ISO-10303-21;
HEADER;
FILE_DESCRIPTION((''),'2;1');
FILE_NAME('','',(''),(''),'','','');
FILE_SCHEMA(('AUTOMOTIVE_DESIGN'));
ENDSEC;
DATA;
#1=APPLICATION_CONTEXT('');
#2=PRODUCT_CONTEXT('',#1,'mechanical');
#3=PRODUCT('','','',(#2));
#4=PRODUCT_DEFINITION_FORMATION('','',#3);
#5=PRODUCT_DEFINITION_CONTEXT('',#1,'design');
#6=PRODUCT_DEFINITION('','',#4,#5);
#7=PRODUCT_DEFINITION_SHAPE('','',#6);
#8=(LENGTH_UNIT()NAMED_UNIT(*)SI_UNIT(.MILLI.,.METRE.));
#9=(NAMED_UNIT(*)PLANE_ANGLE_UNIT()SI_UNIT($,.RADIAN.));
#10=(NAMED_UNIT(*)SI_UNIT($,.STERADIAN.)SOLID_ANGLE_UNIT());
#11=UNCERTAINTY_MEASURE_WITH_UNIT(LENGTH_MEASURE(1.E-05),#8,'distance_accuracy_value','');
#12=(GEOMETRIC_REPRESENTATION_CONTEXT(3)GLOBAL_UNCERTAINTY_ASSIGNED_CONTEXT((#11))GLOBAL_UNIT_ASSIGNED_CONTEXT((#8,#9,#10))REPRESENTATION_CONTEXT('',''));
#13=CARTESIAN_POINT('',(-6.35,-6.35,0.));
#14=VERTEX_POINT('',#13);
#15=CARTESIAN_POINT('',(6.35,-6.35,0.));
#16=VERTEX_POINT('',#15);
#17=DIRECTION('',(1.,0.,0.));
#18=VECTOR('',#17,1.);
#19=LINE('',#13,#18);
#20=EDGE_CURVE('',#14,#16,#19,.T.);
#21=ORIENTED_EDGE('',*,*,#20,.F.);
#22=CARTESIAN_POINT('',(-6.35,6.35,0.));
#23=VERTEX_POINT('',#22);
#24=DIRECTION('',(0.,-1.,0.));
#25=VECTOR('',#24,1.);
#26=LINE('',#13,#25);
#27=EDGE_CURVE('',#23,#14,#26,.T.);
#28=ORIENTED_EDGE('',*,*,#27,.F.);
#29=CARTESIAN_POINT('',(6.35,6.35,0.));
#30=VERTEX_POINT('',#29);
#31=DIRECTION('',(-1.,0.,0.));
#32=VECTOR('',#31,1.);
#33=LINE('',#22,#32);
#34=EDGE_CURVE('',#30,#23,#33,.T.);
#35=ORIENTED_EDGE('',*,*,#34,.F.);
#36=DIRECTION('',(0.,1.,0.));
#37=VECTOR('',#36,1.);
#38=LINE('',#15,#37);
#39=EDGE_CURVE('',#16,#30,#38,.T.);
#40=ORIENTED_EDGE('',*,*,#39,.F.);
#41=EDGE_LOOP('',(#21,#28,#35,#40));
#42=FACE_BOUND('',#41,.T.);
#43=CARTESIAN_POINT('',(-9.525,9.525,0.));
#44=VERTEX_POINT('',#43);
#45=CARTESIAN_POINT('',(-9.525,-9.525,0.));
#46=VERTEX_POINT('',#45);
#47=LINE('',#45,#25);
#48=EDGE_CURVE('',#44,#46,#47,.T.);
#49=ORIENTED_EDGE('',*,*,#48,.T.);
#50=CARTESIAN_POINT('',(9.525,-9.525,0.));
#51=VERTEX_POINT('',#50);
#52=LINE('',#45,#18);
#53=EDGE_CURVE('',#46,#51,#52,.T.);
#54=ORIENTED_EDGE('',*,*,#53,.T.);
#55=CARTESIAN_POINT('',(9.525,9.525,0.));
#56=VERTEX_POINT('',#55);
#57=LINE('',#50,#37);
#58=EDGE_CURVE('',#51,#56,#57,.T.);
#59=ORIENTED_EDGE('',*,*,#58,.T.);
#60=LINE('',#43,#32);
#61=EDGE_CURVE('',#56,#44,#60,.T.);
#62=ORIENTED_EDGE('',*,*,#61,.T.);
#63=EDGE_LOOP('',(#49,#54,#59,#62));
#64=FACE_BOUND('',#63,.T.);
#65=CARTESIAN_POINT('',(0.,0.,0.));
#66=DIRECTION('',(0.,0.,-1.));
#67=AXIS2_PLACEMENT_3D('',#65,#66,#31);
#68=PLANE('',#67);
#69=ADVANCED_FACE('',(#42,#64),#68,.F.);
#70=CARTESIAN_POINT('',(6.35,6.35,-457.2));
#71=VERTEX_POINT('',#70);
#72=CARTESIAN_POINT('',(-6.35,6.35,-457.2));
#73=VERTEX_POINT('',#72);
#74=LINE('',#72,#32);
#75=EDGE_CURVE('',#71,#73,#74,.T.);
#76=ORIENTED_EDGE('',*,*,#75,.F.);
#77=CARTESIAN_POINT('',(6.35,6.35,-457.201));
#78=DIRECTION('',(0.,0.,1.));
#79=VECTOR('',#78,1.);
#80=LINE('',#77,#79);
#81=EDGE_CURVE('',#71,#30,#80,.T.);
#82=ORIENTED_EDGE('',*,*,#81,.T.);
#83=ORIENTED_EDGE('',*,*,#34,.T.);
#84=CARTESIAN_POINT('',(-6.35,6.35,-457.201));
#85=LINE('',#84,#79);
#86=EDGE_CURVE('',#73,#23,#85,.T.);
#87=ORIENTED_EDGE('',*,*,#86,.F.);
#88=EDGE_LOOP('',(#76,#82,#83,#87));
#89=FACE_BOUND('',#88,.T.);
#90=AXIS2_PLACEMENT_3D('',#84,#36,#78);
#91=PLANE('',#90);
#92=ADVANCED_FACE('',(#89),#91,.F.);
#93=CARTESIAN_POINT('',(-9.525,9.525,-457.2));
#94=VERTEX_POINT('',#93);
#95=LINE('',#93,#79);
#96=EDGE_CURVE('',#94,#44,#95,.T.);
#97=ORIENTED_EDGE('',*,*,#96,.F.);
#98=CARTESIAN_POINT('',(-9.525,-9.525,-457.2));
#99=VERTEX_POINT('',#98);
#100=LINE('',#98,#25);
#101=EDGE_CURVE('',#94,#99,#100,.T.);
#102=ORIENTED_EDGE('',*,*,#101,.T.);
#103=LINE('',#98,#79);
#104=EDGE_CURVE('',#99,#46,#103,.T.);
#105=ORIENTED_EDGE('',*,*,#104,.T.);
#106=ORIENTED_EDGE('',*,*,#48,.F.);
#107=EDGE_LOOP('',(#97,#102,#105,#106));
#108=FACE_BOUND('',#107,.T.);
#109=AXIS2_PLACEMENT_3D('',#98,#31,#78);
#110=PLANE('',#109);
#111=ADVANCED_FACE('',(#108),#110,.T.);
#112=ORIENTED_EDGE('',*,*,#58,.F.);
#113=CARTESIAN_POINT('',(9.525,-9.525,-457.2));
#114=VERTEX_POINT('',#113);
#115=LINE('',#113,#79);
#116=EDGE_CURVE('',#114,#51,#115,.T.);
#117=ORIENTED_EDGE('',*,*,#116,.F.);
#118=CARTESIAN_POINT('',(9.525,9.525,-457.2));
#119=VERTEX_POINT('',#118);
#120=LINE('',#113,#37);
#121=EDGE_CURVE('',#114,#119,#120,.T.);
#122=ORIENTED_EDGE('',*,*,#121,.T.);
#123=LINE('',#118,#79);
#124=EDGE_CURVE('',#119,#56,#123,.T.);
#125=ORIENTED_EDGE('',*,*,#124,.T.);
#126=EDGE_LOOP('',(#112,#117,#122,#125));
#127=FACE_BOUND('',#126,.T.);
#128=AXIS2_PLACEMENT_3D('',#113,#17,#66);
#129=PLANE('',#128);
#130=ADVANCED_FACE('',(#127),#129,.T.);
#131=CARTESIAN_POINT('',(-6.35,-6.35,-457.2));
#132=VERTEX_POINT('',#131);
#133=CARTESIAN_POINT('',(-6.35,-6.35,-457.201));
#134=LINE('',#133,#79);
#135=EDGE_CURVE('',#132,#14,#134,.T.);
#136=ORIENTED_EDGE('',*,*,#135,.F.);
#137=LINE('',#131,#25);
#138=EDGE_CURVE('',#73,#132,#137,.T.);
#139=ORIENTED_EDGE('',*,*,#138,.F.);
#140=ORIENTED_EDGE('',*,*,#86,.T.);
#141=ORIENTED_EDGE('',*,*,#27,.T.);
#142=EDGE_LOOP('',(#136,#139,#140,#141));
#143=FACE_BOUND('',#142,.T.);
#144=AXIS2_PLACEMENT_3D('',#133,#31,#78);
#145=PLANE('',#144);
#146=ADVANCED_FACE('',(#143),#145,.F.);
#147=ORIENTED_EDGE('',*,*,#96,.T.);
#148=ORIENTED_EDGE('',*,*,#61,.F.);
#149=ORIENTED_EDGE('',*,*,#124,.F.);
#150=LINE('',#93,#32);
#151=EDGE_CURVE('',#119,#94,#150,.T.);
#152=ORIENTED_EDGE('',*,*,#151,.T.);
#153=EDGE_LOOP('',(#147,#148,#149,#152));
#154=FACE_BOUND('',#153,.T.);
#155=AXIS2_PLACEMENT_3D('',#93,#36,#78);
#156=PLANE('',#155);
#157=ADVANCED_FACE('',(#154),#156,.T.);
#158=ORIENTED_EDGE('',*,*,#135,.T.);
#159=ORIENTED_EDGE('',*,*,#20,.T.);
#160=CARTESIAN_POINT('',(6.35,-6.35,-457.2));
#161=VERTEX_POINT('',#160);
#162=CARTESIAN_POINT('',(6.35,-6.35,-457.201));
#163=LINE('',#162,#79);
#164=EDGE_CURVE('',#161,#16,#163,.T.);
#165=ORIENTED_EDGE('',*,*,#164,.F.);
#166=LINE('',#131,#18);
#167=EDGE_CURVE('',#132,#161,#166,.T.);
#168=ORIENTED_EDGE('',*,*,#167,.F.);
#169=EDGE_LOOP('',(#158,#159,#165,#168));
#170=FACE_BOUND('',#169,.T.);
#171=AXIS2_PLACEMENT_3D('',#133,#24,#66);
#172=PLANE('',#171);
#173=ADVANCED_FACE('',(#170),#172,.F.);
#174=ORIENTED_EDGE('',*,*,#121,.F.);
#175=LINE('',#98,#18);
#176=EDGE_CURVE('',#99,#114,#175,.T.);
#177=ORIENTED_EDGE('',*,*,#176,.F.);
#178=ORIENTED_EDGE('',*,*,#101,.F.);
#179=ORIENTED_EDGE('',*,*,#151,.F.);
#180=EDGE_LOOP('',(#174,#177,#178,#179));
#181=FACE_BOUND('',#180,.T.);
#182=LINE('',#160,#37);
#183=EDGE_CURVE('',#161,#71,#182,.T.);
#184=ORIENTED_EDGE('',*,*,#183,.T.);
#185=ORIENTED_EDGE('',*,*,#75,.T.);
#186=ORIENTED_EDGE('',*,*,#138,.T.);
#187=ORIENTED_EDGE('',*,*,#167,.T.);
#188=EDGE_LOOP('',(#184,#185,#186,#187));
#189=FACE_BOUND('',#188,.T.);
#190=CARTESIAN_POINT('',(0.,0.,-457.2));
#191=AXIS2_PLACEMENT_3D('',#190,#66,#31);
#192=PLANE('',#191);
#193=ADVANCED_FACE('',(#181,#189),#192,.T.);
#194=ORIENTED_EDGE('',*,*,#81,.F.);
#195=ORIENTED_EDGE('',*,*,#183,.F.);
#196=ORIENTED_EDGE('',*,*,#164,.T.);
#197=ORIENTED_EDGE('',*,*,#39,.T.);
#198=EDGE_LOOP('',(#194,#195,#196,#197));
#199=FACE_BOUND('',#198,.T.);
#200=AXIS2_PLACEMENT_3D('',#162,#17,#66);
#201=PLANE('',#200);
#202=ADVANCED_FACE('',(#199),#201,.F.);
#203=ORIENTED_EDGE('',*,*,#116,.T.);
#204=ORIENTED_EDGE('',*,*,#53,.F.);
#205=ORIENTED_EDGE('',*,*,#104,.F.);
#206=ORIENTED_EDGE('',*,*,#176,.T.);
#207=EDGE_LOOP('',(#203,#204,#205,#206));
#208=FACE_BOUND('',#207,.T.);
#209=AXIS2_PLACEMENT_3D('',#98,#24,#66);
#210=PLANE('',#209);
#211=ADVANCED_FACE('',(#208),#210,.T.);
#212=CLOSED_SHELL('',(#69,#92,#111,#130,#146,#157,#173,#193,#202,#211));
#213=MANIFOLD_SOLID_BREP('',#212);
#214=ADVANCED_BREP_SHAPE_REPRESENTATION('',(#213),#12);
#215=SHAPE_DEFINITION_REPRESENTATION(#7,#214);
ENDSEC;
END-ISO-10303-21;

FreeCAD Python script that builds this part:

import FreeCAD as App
import Part
import Sketcher

V = App.Vector
Q = App.Units.Quantity

doc = App.newDocument("Part")
params = doc.addObject("Spreadsheet::Sheet", "Params")
for row, (alias, value) in enumerate([
    ("sketch1_width", "0.75 in"),
    ("pad1_length", "18 in"),
    ("sketch2_width", "0.5 in"),
], start=1):
    params.set(f"A{row}", alias)
    params.set(f"B{row}", "=" + value)
    params.setAlias(f"B{row}", alias)

body = doc.addObject("PartDesign::Body", "Body")

# Sketch on XY plane
sketch1 = body.newObject("Sketcher::SketchObject", "Sketch")
sketch1.AttachmentSupport = (doc.getObject("XY_Plane"), [""])
sketch1.MapMode = "FlatFace"
sketch1.addGeometry([
    Part.LineSegment(V(-10, 10, 0), V(-10, -10, 0)),
    Part.LineSegment(V(-10, -10, 0), V(10, -10, 0)),
    Part.LineSegment(V(10, -10, 0), V(10, 10, 0)),
    Part.LineSegment(V(10, 10, 0), V(-10, 10, 0)),
], False)
sketch1.addConstraint([
    Sketcher.Constraint("Coincident", 0, 2, 1, 1),
    Sketcher.Constraint("Coincident", 1, 2, 2, 1),
    Sketcher.Constraint("Coincident", 2, 2, 3, 1),
    Sketcher.Constraint("Coincident", 3, 2, 0, 1),
    Sketcher.Constraint("Vertical", 0),
    Sketcher.Constraint("Horizontal", 1),
    Sketcher.Constraint("Vertical", 2),
    Sketcher.Constraint("Horizontal", 3),
    Sketcher.Constraint("Symmetric", 0, 2, 2, 2, -1, 1),
    Sketcher.Constraint("Equal", 3, 0),
    Sketcher.Constraint("DistanceX", 1, 1, 1, 2, Q("0.75 in")),
])
sketch1.setExpression("Constraints[10]", "Params.sketch1_width")
pad1 = body.newObject("PartDesign::Pad", "Pad")
pad1.Profile = sketch1
pad1.setExpression("Length", "Params.pad1_length")
pad1.Reversed = True

# Sketch on XY plane
sketch2 = body.newObject("Sketcher::SketchObject", "Sketch001")
sketch2.AttachmentSupport = (doc.getObject("XY_Plane"), [""])
sketch2.MapMode = "FlatFace"
sketch2.addGeometry([
    Part.LineSegment(V(-6, 6, 0), V(-6, -6, 0)),
    Part.LineSegment(V(-6, -6, 0), V(6, -6, 0)),
    Part.LineSegment(V(6, -6, 0), V(6, 6, 0)),
    Part.LineSegment(V(6, 6, 0), V(-6, 6, 0)),
], False)
sketch2.addConstraint([
    Sketcher.Constraint("Coincident", 0, 2, 1, 1),
    Sketcher.Constraint("Coincident", 1, 2, 2, 1),
    Sketcher.Constraint("Coincident", 2, 2, 3, 1),
    Sketcher.Constraint("Coincident", 3, 2, 0, 1),
    Sketcher.Constraint("Vertical", 0),
    Sketcher.Constraint("Horizontal", 1),
    Sketcher.Constraint("Vertical", 2),
    Sketcher.Constraint("Horizontal", 3),
    Sketcher.Constraint("Symmetric", 0, 2, 2, 2, -1, 1),
    Sketcher.Constraint("Equal", 3, 0),
    Sketcher.Constraint("DistanceX", 1, 1, 1, 2, Q("0.5 in")),
])
sketch2.setExpression("Constraints[10]", "Params.sketch2_width")
pocket1 = body.newObject("PartDesign::Pocket", "Pocket")
pocket1.Profile = sketch2
pocket1.Type = "UpToFirst"

doc.recompute()
